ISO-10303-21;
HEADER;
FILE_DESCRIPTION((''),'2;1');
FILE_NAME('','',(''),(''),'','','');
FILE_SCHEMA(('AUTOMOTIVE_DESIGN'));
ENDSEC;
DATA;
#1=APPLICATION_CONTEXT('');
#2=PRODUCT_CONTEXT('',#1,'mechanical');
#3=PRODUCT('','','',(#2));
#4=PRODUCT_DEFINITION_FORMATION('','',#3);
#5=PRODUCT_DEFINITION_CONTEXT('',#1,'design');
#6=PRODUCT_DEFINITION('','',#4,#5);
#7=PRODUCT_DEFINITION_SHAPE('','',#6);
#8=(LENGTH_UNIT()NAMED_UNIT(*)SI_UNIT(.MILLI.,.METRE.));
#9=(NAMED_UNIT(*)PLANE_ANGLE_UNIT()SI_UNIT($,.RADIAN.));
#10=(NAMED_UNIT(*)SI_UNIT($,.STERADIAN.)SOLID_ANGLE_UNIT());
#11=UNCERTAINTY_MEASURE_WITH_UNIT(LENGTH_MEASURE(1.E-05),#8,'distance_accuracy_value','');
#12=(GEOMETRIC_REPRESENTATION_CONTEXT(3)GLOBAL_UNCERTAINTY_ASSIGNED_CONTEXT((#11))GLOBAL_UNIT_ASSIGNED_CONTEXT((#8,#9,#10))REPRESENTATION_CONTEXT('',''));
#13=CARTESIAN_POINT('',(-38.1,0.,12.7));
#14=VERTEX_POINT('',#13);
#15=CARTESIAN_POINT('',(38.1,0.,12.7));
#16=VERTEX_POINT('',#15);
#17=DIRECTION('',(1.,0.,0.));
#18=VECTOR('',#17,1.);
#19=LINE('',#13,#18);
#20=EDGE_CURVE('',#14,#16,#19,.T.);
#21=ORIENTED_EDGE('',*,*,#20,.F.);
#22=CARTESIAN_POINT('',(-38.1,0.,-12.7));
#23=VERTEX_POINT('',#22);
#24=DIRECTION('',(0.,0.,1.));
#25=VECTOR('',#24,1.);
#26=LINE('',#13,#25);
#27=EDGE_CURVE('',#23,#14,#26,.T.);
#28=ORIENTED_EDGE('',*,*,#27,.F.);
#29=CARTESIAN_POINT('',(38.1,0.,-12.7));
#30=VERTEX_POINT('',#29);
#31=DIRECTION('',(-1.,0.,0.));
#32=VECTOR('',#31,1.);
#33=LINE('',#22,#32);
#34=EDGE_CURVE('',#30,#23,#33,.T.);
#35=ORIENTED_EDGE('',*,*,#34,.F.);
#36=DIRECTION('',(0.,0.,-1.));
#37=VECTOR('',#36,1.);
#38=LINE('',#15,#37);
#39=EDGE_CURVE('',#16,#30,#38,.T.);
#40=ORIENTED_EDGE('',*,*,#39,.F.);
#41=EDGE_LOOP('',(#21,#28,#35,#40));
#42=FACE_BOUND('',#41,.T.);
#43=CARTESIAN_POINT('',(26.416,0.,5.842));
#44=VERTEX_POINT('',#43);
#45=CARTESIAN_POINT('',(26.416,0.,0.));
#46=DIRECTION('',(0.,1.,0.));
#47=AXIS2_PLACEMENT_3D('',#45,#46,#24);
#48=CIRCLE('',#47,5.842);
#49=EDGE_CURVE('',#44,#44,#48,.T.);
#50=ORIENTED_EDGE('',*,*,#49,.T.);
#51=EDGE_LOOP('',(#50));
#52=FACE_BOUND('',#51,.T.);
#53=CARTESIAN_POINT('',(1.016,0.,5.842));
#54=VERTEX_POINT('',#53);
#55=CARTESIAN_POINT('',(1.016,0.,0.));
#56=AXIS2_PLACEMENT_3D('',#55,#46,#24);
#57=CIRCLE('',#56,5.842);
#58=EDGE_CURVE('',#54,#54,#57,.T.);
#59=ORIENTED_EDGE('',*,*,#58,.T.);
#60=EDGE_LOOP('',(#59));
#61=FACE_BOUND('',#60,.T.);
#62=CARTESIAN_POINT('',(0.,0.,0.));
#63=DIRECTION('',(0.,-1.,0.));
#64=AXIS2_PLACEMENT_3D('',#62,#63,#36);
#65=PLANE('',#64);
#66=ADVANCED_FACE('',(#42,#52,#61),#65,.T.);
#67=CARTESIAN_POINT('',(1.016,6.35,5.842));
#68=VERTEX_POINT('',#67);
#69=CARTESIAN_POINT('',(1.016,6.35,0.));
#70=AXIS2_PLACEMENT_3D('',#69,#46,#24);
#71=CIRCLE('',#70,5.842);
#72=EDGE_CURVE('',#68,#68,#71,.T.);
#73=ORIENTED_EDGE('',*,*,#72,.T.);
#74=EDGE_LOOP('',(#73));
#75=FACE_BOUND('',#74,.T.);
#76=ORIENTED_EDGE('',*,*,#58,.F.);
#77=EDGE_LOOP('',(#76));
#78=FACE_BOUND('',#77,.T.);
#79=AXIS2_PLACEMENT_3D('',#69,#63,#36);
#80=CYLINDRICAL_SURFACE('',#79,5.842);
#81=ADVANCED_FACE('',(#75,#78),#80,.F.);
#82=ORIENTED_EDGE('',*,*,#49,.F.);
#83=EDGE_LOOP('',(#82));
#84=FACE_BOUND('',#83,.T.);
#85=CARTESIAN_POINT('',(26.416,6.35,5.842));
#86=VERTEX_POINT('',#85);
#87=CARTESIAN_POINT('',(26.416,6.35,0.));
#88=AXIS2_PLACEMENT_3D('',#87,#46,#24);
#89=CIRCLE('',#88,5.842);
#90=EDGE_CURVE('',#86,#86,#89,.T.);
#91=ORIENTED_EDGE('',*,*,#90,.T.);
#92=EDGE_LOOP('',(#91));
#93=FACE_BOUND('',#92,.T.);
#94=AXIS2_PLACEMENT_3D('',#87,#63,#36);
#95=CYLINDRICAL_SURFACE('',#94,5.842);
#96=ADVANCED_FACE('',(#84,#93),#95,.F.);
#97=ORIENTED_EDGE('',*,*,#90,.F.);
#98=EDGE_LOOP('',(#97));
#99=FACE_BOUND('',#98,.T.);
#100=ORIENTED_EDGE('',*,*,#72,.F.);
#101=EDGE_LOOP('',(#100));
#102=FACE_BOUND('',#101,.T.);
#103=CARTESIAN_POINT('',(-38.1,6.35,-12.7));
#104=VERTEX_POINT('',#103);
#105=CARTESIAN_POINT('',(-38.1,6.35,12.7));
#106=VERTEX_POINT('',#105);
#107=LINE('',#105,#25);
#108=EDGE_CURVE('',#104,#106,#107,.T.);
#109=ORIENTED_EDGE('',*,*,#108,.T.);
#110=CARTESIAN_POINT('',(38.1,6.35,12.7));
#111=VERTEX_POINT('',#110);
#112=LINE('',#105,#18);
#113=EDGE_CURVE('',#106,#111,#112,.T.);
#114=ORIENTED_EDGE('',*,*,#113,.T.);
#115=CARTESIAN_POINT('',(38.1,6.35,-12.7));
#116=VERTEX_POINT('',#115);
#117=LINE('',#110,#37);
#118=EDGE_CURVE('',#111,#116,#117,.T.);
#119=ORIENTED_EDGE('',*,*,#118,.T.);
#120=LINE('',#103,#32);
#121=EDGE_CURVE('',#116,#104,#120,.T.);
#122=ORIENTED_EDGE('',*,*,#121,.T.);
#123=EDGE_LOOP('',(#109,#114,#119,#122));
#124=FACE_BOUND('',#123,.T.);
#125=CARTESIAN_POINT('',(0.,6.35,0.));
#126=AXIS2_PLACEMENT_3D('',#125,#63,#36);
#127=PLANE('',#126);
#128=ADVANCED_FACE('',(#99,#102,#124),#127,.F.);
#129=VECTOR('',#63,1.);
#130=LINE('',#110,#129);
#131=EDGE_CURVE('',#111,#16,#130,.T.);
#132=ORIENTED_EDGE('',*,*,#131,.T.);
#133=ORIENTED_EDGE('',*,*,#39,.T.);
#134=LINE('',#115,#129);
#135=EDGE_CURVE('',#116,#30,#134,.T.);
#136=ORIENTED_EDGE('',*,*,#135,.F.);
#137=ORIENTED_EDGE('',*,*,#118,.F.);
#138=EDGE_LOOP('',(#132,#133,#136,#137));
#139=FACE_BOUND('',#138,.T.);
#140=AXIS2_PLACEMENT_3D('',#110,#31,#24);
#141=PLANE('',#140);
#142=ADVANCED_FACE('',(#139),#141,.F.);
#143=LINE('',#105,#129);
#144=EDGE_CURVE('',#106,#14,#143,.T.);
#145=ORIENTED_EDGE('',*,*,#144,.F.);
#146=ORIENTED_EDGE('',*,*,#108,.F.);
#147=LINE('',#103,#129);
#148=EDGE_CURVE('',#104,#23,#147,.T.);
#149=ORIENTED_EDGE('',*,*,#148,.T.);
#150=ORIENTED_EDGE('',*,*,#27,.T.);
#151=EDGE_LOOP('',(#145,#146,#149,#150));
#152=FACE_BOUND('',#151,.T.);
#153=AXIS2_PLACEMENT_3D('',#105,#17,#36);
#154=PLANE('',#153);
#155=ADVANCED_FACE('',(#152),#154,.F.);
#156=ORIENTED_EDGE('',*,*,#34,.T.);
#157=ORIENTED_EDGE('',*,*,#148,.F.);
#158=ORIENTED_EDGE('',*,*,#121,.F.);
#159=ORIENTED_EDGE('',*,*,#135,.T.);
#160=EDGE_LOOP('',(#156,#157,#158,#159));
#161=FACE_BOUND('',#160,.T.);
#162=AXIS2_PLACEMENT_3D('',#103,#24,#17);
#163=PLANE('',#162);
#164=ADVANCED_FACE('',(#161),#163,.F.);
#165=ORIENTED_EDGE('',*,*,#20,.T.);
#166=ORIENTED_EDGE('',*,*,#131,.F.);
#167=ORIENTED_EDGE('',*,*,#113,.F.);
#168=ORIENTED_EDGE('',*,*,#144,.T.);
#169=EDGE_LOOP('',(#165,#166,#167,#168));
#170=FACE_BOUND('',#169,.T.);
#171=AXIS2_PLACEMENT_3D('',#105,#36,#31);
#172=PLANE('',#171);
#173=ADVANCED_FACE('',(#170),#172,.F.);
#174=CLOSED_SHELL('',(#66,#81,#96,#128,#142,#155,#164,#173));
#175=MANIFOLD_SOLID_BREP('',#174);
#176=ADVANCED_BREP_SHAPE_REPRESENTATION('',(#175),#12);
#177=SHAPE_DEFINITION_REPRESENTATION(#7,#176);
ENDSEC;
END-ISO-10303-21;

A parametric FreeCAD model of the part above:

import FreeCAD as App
import Part
import Sketcher
from FreeCAD import Vector
Q = App.Units.Quantity

doc = App.newDocument("Part")
params = doc.addObject("Spreadsheet::Sheet", "Params")
for row, (alias, value) in enumerate([
    ("sketch1_diameter", "0.46 in"),
    ("sketch1_width", "3 in"),
    ("sketch1_height", "1 in"),
    ("pad1_length", "0.25 in"),
], start=1):
    params.set(f"A{row}", alias)
    params.set(f"B{row}", "=" + value)
    params.setAlias(f"B{row}", alias)

body = doc.addObject("PartDesign::Body", "Body")

# Sketch on XZ plane
sketch1 = body.newObject("Sketcher::SketchObject", "Sketch")
sketch1.AttachmentSupport = (doc.getObject("XZ_Plane"), [""])
sketch1.MapMode = "FlatFace"
sketch1.addGeometry(Part.LineSegment(Vector(-38, -13, 0), Vector(-38, 13, 0)), False)
sketch1.addGeometry(Part.LineSegment(Vector(-38, 13, 0), Vector(38, 13, 0)), False)
sketch1.addGeometry(Part.LineSegment(Vector(38, 13, 0), Vector(38, -13, 0)), False)
sketch1.addGeometry(Part.LineSegment(Vector(38, -13, 0), Vector(-38, -13, 0)), False)
sketch1.addGeometry(Part.Circle(Vector(1, 0, 0), Vector(0, 0, 1), 6), False)
sketch1.addGeometry(Part.Circle(Vector(26, 0, 0), Vector(0, 0, 1), 6), False)
sketch1.addConstraint(Sketcher.Constraint("Coincident", 0, 2, 1, 1))
sketch1.addConstraint(Sketcher.Constraint("Coincident", 1, 2, 2, 1))
sketch1.addConstraint(Sketcher.Constraint("Coincident", 2, 2, 3, 1))
sketch1.addConstraint(Sketcher.Constraint("Coincident", 3, 2, 0, 1))
sketch1.addConstraint(Sketcher.Constraint("Vertical", 0))
sketch1.addConstraint(Sketcher.Constraint("Horizontal", 1))
sketch1.addConstraint(Sketcher.Constraint("Vertical", 2))
sketch1.addConstraint(Sketcher.Constraint("Horizontal", 3))
sketch1.addConstraint(Sketcher.Constraint("Equal", 4, 5))
sketch1.addConstraint(Sketcher.Constraint("Symmetric", 0, 2, 2, 2, -1, 1))
sketch1.addConstraint(Sketcher.Constraint("PointOnObject", 4, 3, -1))
sketch1.addConstraint(Sketcher.Constraint("PointOnObject", 5, 3, -1))
sketch1.addConstraint(Sketcher.Constraint("Diameter", 4, Q("0.46 in")))
sketch1.addConstraint(Sketcher.Constraint("DistanceX", 1, 1, 1, 2, Q("3 in")))
sketch1.addConstraint(Sketcher.Constraint("DistanceY", 0, 1, 0, 2, Q("1 in")))
sketch1.addConstraint(Sketcher.Constraint("DistanceX", 4, 3, 5, 3, Q("1 in")))
sketch1.addConstraint(Sketcher.Constraint("DistanceX", -1, 1, 4, 3, Q("0.04 in")))
sketch1.setExpression("Constraints[12]", "Params.sketch1_diameter")
sketch1.setExpression("Constraints[13]", "Params.sketch1_width")
sketch1.setExpression("Constraints[14]", "Params.sketch1_height")
pad1 = body.newObject("PartDesign::Pad", "Pad")
pad1.Profile = sketch1
pad1.setExpression("Length", "Params.pad1_length")
pad1.Reversed = True

doc.recompute()
